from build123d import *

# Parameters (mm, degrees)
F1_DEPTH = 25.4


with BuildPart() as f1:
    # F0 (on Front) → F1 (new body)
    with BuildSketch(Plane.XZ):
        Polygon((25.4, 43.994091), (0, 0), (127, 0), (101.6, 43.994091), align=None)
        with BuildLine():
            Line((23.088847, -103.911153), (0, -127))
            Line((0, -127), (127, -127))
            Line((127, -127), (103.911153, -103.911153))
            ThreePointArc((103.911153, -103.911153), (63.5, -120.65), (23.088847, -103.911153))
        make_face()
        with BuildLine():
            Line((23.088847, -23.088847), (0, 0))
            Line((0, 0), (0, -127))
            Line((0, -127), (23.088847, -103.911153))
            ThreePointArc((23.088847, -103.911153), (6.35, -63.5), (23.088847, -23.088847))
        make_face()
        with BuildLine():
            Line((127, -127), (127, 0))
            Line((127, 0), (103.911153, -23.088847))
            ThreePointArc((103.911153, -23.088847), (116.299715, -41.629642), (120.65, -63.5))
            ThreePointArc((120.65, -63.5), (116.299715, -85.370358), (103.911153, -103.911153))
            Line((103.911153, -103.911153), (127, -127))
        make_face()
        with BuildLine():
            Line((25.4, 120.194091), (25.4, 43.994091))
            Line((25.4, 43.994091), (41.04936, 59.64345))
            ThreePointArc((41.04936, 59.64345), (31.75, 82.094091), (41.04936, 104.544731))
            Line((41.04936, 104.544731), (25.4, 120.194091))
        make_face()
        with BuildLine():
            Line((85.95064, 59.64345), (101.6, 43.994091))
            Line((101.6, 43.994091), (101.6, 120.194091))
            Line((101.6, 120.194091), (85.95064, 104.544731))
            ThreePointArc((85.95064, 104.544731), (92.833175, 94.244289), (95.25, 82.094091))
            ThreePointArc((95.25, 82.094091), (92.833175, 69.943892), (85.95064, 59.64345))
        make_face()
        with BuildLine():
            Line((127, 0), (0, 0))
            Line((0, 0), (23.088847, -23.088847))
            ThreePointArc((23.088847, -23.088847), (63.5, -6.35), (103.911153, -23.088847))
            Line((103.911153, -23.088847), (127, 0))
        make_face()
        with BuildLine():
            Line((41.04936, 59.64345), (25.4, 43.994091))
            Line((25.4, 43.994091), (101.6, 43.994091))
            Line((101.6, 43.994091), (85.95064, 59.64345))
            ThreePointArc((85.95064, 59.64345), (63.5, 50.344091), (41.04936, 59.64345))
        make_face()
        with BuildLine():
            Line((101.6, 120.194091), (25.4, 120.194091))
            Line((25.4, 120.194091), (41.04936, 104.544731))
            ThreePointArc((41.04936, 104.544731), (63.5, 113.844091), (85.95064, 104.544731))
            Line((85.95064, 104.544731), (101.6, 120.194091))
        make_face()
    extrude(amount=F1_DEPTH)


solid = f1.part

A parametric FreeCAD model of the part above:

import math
import FreeCAD as App
import Part
import Sketcher
Q = App.Units.Quantity

doc = App.newDocument("Part")
params = doc.addObject("Spreadsheet::Sheet", "Params")
for row, (alias, value) in enumerate([
    ("sketch1_width", "5 in"),
    ("sketch1_width2", "3 in"),
    ("sketch1_radius", "1.2500001 in"),
    ("sketch1_radius2", "2.2500001 in"),
    ("sketch1_length", "2 in"),
    ("pad1_length", "1 in"),
], start=1):
    params.set(f"A{row}", alias)
    params.set(f"B{row}", "=" + value)
    params.setAlias(f"B{row}", alias)

body = doc.addObject("PartDesign::Body", "Body")

# Sketch on XZ plane
sketch1 = body.newObject("Sketcher::SketchObject", "Sketch")
sketch1.AttachmentSupport = (doc.getObject("XZ_Plane"), [""])
sketch1.MapMode = "FlatFace"
sketch1.addGeometry([
    Part.LineSegment(App.Vector(25, 44, 0), App.Vector(0, 0, 0)),  # 0
    Part.LineSegment(App.Vector(0, 0, 0), App.Vector(0, -127, 0)),  # 1
    Part.LineSegment(App.Vector(0, -127, 0), App.Vector(127, -127, 0)),  # 2
    Part.LineSegment(App.Vector(127, -127, 0), App.Vector(127, 0, 0)),  # 3
    Part.LineSegment(App.Vector(127, 0, 0), App.Vector(102, 44, 0)),  # 4
    Part.LineSegment(App.Vector(102, 44, 0), App.Vector(102, 120, 0)),  # 5
    Part.LineSegment(App.Vector(102, 120, 0), App.Vector(25, 120, 0)),  # 6
    Part.LineSegment(App.Vector(25, 120, 0), App.Vector(25, 44, 0)),  # 7
    Part.ArcOfCircle(Part.Circle(App.Vector(63, 82, 0), App.Vector(0, 0, 1), 32), math.radians(0), math.radians(45)),  # 8
    Part.ArcOfCircle(Part.Circle(App.Vector(63, 82, 0), App.Vector(0, 0, 1), 32), math.radians(-45), math.radians(0)),  # 9
    Part.ArcOfCircle(Part.Circle(App.Vector(64, 82, 0), App.Vector(0, 0, 1), 32), math.radians(-135), math.radians(-45)),  # 10
    Part.ArcOfCircle(Part.Circle(App.Vector(63, 82, 0), App.Vector(0, 0, 1), 32), math.radians(135), math.radians(225)),  # 11
    Part.ArcOfCircle(Part.Circle(App.Vector(64, 82, 0), App.Vector(0, 0, 1), 32), math.radians(45), math.radians(135)),  # 12
    Part.ArcOfCircle(Part.Circle(App.Vector(64, -64, 0), App.Vector(0, 0, 1), 57), math.radians(45), math.radians(135)),  # 13
    Part.ArcOfCircle(Part.Circle(App.Vector(63, -64, 0), App.Vector(0, 0, 1), 57), math.radians(0), math.radians(45)),  # 14
    Part.ArcOfCircle(Part.Circle(App.Vector(63, -63, 0), App.Vector(0, 0, 1), 57), math.radians(-45), math.radians(0)),  # 15
    Part.ArcOfCircle(Part.Circle(App.Vector(64, -63, 0), App.Vector(0, 0, 1), 57), math.radians(-135), math.radians(-45)),  # 16
    Part.ArcOfCircle(Part.Circle(App.Vector(64, -64, 0), App.Vector(0, 0, 1), 57), math.radians(135), math.radians(225)),  # 17
], False)
sketch1.addConstraint([
    Sketcher.Constraint("Coincident", 0, 2, 1, 1),
    Sketcher.Constraint("Coincident", 1, 2, 2, 1),
    Sketcher.Constraint("Coincident", 2, 2, 3, 1),
    Sketcher.Constraint("Coincident", 3, 2, 4, 1),
    Sketcher.Constraint("Coincident", 4, 2, 5, 1),
    Sketcher.Constraint("Coincident", 5, 2, 6, 1),
    Sketcher.Constraint("Coincident", 6, 2, 7, 1),
    Sketcher.Constraint("Coincident", 7, 2, 0, 1),
    Sketcher.Constraint("Tangent", 8, 1, 9, 2),
    Sketcher.Constraint("Tangent", 9, 1, 10, 2),
    Sketcher.Constraint("Tangent", 10, 1, 11, 2),
    Sketcher.Constraint("Tangent", 11, 1, 12, 2),
    Sketcher.Constraint("Tangent", 12, 1, 8, 2),
    Sketcher.Constraint("Tangent", 13, 1, 14, 2),
    Sketcher.Constraint("Tangent", 14, 1, 15, 2),
    Sketcher.Constraint("Tangent", 15, 1, 16, 2),
    Sketcher.Constraint("Tangent", 16, 1, 17, 2),
    Sketcher.Constraint("Tangent", 17, 1, 13, 2),
    Sketcher.Constraint("Vertical", 1),
    Sketcher.Constraint("Horizontal", 2),
    Sketcher.Constraint("Vertical", 3),
    Sketcher.Constraint("Vertical", 5),
    Sketcher.Constraint("Horizontal", 6),
    Sketcher.Constraint("Vertical", 7),
    Sketcher.Constraint("Coincident", 0, 2, -1, 1),
    Sketcher.Constraint("Coincident", 10, 3, 8, 3),
    Sketcher.Constraint("Coincident", 15, 3, 13, 3),
    Sketcher.Constraint("PointOnObject", 3, 2, -1),
    Sketcher.Constraint("Horizontal", 4, 2, 7, 2),
    Sketcher.Constraint("Horizontal", 12, 3, 8, 1),
    Sketcher.Constraint("Horizontal", 9, 1, 10, 1),
    Sketcher.Constraint("Horizontal", 11, 1, 12, 1),
    Sketcher.Constraint("Horizontal", 17, 3, 14, 1),
    Sketcher.Constraint("Horizontal", 15, 1, 16, 1),
    Sketcher.Constraint("Horizontal", 13, 1, 17, 1),
    Sketcher.Constraint("Vertical", 12, 3, 13, 3),
    Sketcher.Constraint("Vertical", 10, 1, 11, 1),
    Sketcher.Constraint("Vertical", 13, 1, 15, 1),
    Sketcher.Constraint("Equal", 2, 1),
    Sketcher.Constraint("Equal", 6, 5),
    Sketcher.Constraint("Equal", 0, 4),
    Sketcher.Constraint("DistanceX", 2, 1, 2, 2, Q("5 in")),
    Sketcher.Constraint("DistanceX", 6, 2, 6, 1, Q("3 in")),
    Sketcher.Constraint("Radius", 8, Q("1.2500001 in")),
    Sketcher.Constraint("Radius", 13, Q("2.2500001 in")),
    Sketcher.Constraint("Distance", 0, Q("2 in")),
    Sketcher.Constraint("DistanceX", -1, 1, 8, 3, Q("2.4999999 in")),
    Sketcher.Constraint("DistanceY", 13, 3, -1, 1, Q("2.5000001 in")),
    Sketcher.Constraint("DistanceY", 4, 2, 11, 3, Q("1.5 in")),
    Sketcher.Constraint("DistanceX", -1, 1, 9, 1, 85.95064),
    Sketcher.Constraint("DistanceY", 16, 3, 13, 1, 40.411151),
])
sketch1.setExpression("Constraints[41]", "Params.sketch1_width")
sketch1.setExpression("Constraints[42]", "Params.sketch1_width2")
sketch1.setExpression("Constraints[43]", "Params.sketch1_radius")
sketch1.setExpression("Constraints[44]", "Params.sketch1_radius2")
sketch1.setExpression("Constraints[45]", "Params.sketch1_length")
pad1 = body.newObject("PartDesign::Pad", "Pad")
pad1.Profile = sketch1
pad1.setExpression("Length", "Params.pad1_length")

doc.recompute()
